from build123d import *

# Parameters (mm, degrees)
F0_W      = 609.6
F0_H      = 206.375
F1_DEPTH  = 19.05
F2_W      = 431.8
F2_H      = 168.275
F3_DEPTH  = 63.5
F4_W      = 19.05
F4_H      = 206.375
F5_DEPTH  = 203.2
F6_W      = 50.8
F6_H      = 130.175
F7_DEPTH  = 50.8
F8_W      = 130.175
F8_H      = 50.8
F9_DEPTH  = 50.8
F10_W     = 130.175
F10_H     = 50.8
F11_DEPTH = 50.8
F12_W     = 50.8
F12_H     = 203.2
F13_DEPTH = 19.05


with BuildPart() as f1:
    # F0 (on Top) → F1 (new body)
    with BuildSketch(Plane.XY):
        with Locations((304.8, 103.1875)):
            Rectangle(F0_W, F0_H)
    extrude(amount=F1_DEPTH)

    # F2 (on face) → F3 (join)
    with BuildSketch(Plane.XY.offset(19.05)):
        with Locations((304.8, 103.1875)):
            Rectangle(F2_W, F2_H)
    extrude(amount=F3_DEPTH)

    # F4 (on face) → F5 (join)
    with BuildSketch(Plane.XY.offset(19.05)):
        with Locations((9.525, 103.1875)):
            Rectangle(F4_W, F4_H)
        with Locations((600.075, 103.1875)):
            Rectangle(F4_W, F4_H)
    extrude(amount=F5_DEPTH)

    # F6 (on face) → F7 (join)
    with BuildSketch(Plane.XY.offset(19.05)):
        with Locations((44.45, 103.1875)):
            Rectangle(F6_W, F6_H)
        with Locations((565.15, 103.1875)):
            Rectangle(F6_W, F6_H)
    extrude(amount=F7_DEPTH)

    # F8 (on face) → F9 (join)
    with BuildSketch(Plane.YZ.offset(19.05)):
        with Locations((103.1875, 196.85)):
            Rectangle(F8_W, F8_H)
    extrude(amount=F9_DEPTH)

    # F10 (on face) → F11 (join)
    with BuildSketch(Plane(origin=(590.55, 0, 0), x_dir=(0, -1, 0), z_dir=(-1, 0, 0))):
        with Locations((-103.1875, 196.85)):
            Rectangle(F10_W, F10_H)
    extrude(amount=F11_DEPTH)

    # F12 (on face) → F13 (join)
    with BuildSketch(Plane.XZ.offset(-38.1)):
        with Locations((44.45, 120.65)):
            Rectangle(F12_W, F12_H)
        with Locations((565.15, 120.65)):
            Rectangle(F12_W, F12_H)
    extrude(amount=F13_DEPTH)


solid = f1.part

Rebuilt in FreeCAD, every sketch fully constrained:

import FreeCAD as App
import Part
import Sketcher

V = App.Vector
Q = App.Units.Quantity

doc = App.newDocument("Part")
body = doc.addObject("PartDesign::Body", "Body")

# Sketch on XY plane
sketch1 = body.newObject("Sketcher::SketchObject", "Sketch")
sketch1.AttachmentSupport = (doc.getObject("XY_Plane"), [""])
sketch1.MapMode = "FlatFace"
sketch1.addGeometry(Part.LineSegment(V(0, 206, 0), V(0, 0, 0)), False)
sketch1.addGeometry(Part.LineSegment(V(0, 0, 0), V(610, 0, 0)), False)
sketch1.addGeometry(Part.LineSegment(V(610, 0, 0), V(610, 206, 0)), False)
sketch1.addGeometry(Part.LineSegment(V(610, 206, 0), V(0, 206, 0)), False)
sketch1.addConstraint(Sketcher.Constraint("Coincident", 0, 2, 1, 1))
sketch1.addConstraint(Sketcher.Constraint("Coincident", 1, 2, 2, 1))
sketch1.addConstraint(Sketcher.Constraint("Coincident", 2, 2, 3, 1))
sketch1.addConstraint(Sketcher.Constraint("Coincident", 3, 2, 0, 1))
sketch1.addConstraint(Sketcher.Constraint("Vertical", 0))
sketch1.addConstraint(Sketcher.Constraint("Horizontal", 1))
sketch1.addConstraint(Sketcher.Constraint("Vertical", 2))
sketch1.addConstraint(Sketcher.Constraint("Horizontal", 3))
sketch1.addConstraint(Sketcher.Constraint("Coincident", 0, 2, -1, 1))
sketch1.addConstraint(Sketcher.Constraint("DistanceX", 1, 1, 1, 2, Q("24 in")))
sketch1.addConstraint(Sketcher.Constraint("DistanceY", 0, 2, 0, 1, Q("8.125 in")))
pad1 = body.newObject("PartDesign::Pad", "Pad")
pad1.Profile = sketch1
pad1.Length = Q("0.75 in")

# Sketch on XY plane
sketch2 = body.newObject("Sketcher::SketchObject", "Sketch001")
sketch2.AttachmentSupport = (doc.getObject("XY_Plane"), [""])
sketch2.MapMode = "FlatFace"
sketch2.AttachmentOffset = App.Placement(V(0, 0, 0.75 * 25.4), App.Rotation())
sketch2.addGeometry(Part.LineSegment(V(89, 187, 0), V(89, 19, 0)), False)
sketch2.addGeometry(Part.LineSegment(V(89, 19, 0), V(521, 19, 0)), False)
sketch2.addGeometry(Part.LineSegment(V(521, 19, 0), V(521, 187, 0)), False)
sketch2.addGeometry(Part.LineSegment(V(521, 187, 0), V(89, 187, 0)), False)
sketch2.addConstraint(Sketcher.Constraint("Coincident", 0, 2, 1, 1))
sketch2.addConstraint(Sketcher.Constraint("Coincident", 1, 2, 2, 1))
sketch2.addConstraint(Sketcher.Constraint("Coincident", 2, 2, 3, 1))
sketch2.addConstraint(Sketcher.Constraint("Coincident", 3, 2, 0, 1))
sketch2.addConstraint(Sketcher.Constraint("Vertical", 0))
sketch2.addConstraint(Sketcher.Constraint("Horizontal", 1))
sketch2.addConstraint(Sketcher.Constraint("Vertical", 2))
sketch2.addConstraint(Sketcher.Constraint("Horizontal", 3))
sketch2.addConstraint(Sketcher.Constraint("DistanceX", 1, 1, 1, 2, Q("17 in")))
sketch2.addConstraint(Sketcher.Constraint("DistanceX", -1, 1, 0, 2, Q("3.5 in")))
sketch2.addConstraint(Sketcher.Constraint("DistanceY", 0, 2, 0, 1, Q("6.625 in")))
sketch2.addConstraint(Sketcher.Constraint("DistanceY", -1, 1, 0, 2, Q("0.75 in")))
pad2 = body.newObject("PartDesign::Pad", "Pad001")
pad2.Profile = sketch2
pad2.Length = Q("2.5 in")

# Sketch on XY plane
sketch3 = body.newObject("Sketcher::SketchObject", "Sketch002")
sketch3.AttachmentSupport = (doc.getObject("XY_Plane"), [""])
sketch3.MapMode = "FlatFace"
sketch3.AttachmentOffset = App.Placement(V(0, 0, 0.75 * 25.4), App.Rotation())
sketch3.addGeometry(Part.LineSegment(V(0, 206, 0), V(0, 0, 0)), False)
sketch3.addGeometry(Part.LineSegment(V(0, 0, 0), V(19, 0, 0)), False)
sketch3.addGeometry(Part.LineSegment(V(19, 0, 0), V(19, 206, 0)), False)
sketch3.addGeometry(Part.LineSegment(V(19, 206, 0), V(0, 206, 0)), False)
sketch3.addGeometry(Part.LineSegment(V(591, 206, 0), V(591, 0, 0)), False)
sketch3.addGeometry(Part.LineSegment(V(591, 0, 0), V(610, 0, 0)), False)
sketch3.addGeometry(Part.LineSegment(V(610, 0, 0), V(610, 206, 0)), False)
sketch3.addGeometry(Part.LineSegment(V(610, 206, 0), V(591, 206, 0)), False)
sketch3.addConstraint(Sketcher.Constraint("Coincident", 0, 2, 1, 1))
sketch3.addConstraint(Sketcher.Constraint("Coincident", 1, 2, 2, 1))
sketch3.addConstraint(Sketcher.Constraint("Coincident", 2, 2, 3, 1))
sketch3.addConstraint(Sketcher.Constraint("Coincident", 3, 2, 0, 1))
sketch3.addConstraint(Sketcher.Constraint("Coincident", 4, 2, 5, 1))
sketch3.addConstraint(Sketcher.Constraint("Coincident", 5, 2, 6, 1))
sketch3.addConstraint(Sketcher.Constraint("Coincident", 6, 2, 7, 1))
sketch3.addConstraint(Sketcher.Constraint("Coincident", 7, 2, 4, 1))
sketch3.addConstraint(Sketcher.Constraint("Vertical", 0))
sketch3.addConstraint(Sketcher.Constraint("Horizontal", 1))
sketch3.addConstraint(Sketcher.Constraint("Vertical", 2))
sketch3.addConstraint(Sketcher.Constraint("Horizontal", 3))
sketch3.addConstraint(Sketcher.Constraint("Vertical", 4))
sketch3.addConstraint(Sketcher.Constraint("Horizontal", 5))
sketch3.addConstraint(Sketcher.Constraint("Vertical", 6))
sketch3.addConstraint(Sketcher.Constraint("Horizontal", 7))
sketch3.addConstraint(Sketcher.Constraint("Coincident", 0, 2, -1, 1))
sketch3.addConstraint(Sketcher.Constraint("PointOnObject", 4, 2, -1))
sketch3.addConstraint(Sketcher.Constraint("Horizontal", 3, 2, 6, 2))
sketch3.addConstraint(Sketcher.Constraint("Equal", 3, 5))
sketch3.addConstraint(Sketcher.Constraint("DistanceX", -1, 1, 5, 2, Q("24 in")))
sketch3.addConstraint(Sketcher.Constraint("DistanceX", 1, 1, 1, 2, Q("0.75 in")))
sketch3.addConstraint(Sketcher.Constraint("DistanceY", 0, 2, 0, 1, Q("8.125 in")))
pad3 = body.newObject("PartDesign::Pad", "Pad002")
pad3.Profile = sketch3
pad3.Length = Q("8 in")

# Sketch on XY plane
sketch4 = body.newObject("Sketcher::SketchObject", "Sketch003")
sketch4.AttachmentSupport = (doc.getObject("XY_Plane"), [""])
sketch4.MapMode = "FlatFace"
sketch4.AttachmentOffset = App.Placement(V(0, 0, 0.75 * 25.4), App.Rotation())
sketch4.addGeometry(Part.LineSegment(V(19, 168, 0), V(19, 38, 0)), False)
sketch4.addGeometry(Part.LineSegment(V(19, 38, 0), V(70, 38, 0)), False)
sketch4.addGeometry(Part.LineSegment(V(70, 38, 0), V(70, 168, 0)), False)
sketch4.addGeometry(Part.LineSegment(V(70, 168, 0), V(19, 168, 0)), False)
sketch4.addGeometry(Part.LineSegment(V(540, 168, 0), V(540, 38, 0)), False)
sketch4.addGeometry(Part.LineSegment(V(540, 38, 0), V(591, 38, 0)), False)
sketch4.addGeometry(Part.LineSegment(V(591, 38, 0), V(591, 168, 0)), False)
sketch4.addGeometry(Part.LineSegment(V(591, 168, 0), V(540, 168, 0)), False)
sketch4.addConstraint(Sketcher.Constraint("Coincident", 0, 2, 1, 1))
sketch4.addConstraint(Sketcher.Constraint("Coincident", 1, 2, 2, 1))
sketch4.addConstraint(Sketcher.Constraint("Coincident", 2, 2, 3, 1))
sketch4.addConstraint(Sketcher.Constraint("Coincident", 3, 2, 0, 1))
sketch4.addConstraint(Sketcher.Constraint("Coincident", 4, 2, 5, 1))
sketch4.addConstraint(Sketcher.Constraint("Coincident", 5, 2, 6, 1))
sketch4.addConstraint(Sketcher.Constraint("Coincident", 6, 2, 7, 1))
sketch4.addConstraint(Sketcher.Constraint("Coincident", 7, 2, 4, 1))
sketch4.addConstraint(Sketcher.Constraint("Vertical", 0))
sketch4.addConstraint(Sketcher.Constraint("Horizontal", 1))
sketch4.addConstraint(Sketcher.Constraint("Vertical", 2))
sketch4.addConstraint(Sketcher.Constraint("Horizontal", 3))
sketch4.addConstraint(Sketcher.Constraint("Vertical", 4))
sketch4.addConstraint(Sketcher.Constraint("Horizontal", 5))
sketch4.addConstraint(Sketcher.Constraint("Vertical", 6))
sketch4.addConstraint(Sketcher.Constraint("Horizontal", 7))
sketch4.addConstraint(Sketcher.Constraint("Horizontal", 1, 2, 4, 2))
sketch4.addConstraint(Sketcher.Constraint("Horizontal", 3, 2, 6, 2))
sketch4.addConstraint(Sketcher.Constraint("Equal", 3, 5))
sketch4.addConstraint(Sketcher.Constraint("DistanceX", 1, 1, 1, 2, Q("2 in")))
sketch4.addConstraint(Sketcher.Constraint("DistanceY", -1, 1, 0, 2, Q("1.5 in")))
sketch4.addConstraint(Sketcher.Constraint("DistanceX", 1, 2, 4, 2, Q("18.5 in")))
sketch4.addConstraint(Sketcher.Constraint("DistanceY", 0, 2, 0, 1, Q("5.125 in")))
sketch4.addConstraint(Sketcher.Constraint("DistanceX", -1, 1, 0, 2, Q("0.75 in")))
pad4 = body.newObject("PartDesign::Pad", "Pad003")
pad4.Profile = sketch4
pad4.Length = Q("2 in")

# Sketch on YZ plane
sketch5 = body.newObject("Sketcher::SketchObject", "Sketch004")
sketch5.AttachmentSupport = (doc.getObject("YZ_Plane"), [""])
sketch5.MapMode = "FlatFace"
sketch5.AttachmentOffset = App.Placement(V(0, 0, 0.75 * 25.4), App.Rotation())
sketch5.addGeometry(Part.LineSegment(V(38, 222, 0), V(38, 171, 0)), False)
sketch5.addGeometry(Part.LineSegment(V(38, 171, 0), V(168, 171, 0)), False)
sketch5.addGeometry(Part.LineSegment(V(168, 171, 0), V(168, 222, 0)), False)
sketch5.addGeometry(Part.LineSegment(V(168, 222, 0), V(38, 222, 0)), False)
sketch5.addConstraint(Sketcher.Constraint("Coincident", 0, 2, 1, 1))
sketch5.addConstraint(Sketcher.Constraint("Coincident", 1, 2, 2, 1))
sketch5.addConstraint(Sketcher.Constraint("Coincident", 2, 2, 3, 1))
sketch5.addConstraint(Sketcher.Constraint("Coincident", 3, 2, 0, 1))
sketch5.addConstraint(Sketcher.Constraint("Vertical", 0))
sketch5.addConstraint(Sketcher.Constraint("Horizontal", 1))
sketch5.addConstraint(Sketcher.Constraint("Vertical", 2))
sketch5.addConstraint(Sketcher.Constraint("Horizontal", 3))
sketch5.addConstraint(Sketcher.Constraint("DistanceY", 0, 2, 0, 1, Q("2 in")))
sketch5.addConstraint(Sketcher.Constraint("DistanceX", -1, 1, 0, 2, Q("1.5 in")))
sketch5.addConstraint(Sketcher.Constraint("DistanceX", 1, 1, 1, 2, Q("5.125 in")))
sketch5.addConstraint(Sketcher.Constraint("DistanceY", -1, 1, 0, 2, Q("6.75 in")))
pad5 = body.newObject("PartDesign::Pad", "Pad004")
pad5.Profile = sketch5
pad5.Length = Q("2 in")

# Sketch on YZ plane
sketch6 = body.newObject("Sketcher::SketchObject", "Sketch005")
sketch6.AttachmentSupport = (doc.getObject("YZ_Plane"), [""])
sketch6.MapMode = "FlatFace"
sketch6.AttachmentOffset = App.Placement(V(0, 0, 23.25 * 25.4), App.Rotation())
sketch6.addGeometry(Part.LineSegment(V(168, 222, 0), V(168, 171, 0)), False)
sketch6.addGeometry(Part.LineSegment(V(168, 171, 0), V(38, 171, 0)), False)
sketch6.addGeometry(Part.LineSegment(V(38, 171, 0), V(38, 222, 0)), False)
sketch6.addGeometry(Part.LineSegment(V(38, 222, 0), V(168, 222, 0)), False)
sketch6.addConstraint(Sketcher.Constraint("Coincident", 0, 2, 1, 1))
sketch6.addConstraint(Sketcher.Constraint("Coincident", 1, 2, 2, 1))
sketch6.addConstraint(Sketcher.Constraint("Coincident", 2, 2, 3, 1))
sketch6.addConstraint(Sketcher.Constraint("Coincident", 3, 2, 0, 1))
sketch6.addConstraint(Sketcher.Constraint("Vertical", 0))
sketch6.addConstraint(Sketcher.Constraint("Horizontal", 1))
sketch6.addConstraint(Sketcher.Constraint("Vertical", 2))
sketch6.addConstraint(Sketcher.Constraint("Horizontal", 3))
sketch6.addConstraint(Sketcher.Constraint("DistanceY", 0, 2, 0, 1, Q("2 in")))
sketch6.addConstraint(Sketcher.Constraint("DistanceX", -1, 1, 1, 2, Q("1.5 in")))
sketch6.addConstraint(Sketcher.Constraint("DistanceX", 1, 2, 1, 1, Q("5.125 in")))
sketch6.addConstraint(Sketcher.Constraint("DistanceY", -1, 1, 0, 2, Q("6.75 in")))
pad6 = body.newObject("PartDesign::Pad", "Pad005")
pad6.Profile = sketch6
pad6.Length = Q("2 in")
pad6.Reversed = True

# Sketch on XZ plane
sketch7 = body.newObject("Sketcher::SketchObject", "Sketch006")
sketch7.AttachmentSupport = (doc.getObject("XZ_Plane"), [""])
sketch7.MapMode = "FlatFace"
sketch7.AttachmentOffset = App.Placement(V(0, 0, -1.5 * 25.4), App.Rotation())
sketch7.addGeometry(Part.LineSegment(V(19, 222, 0), V(19, 19, 0)), False)
sketch7.addGeometry(Part.LineSegment(V(19, 19, 0), V(70, 19, 0)), False)
sketch7.addGeometry(Part.LineSegment(V(70, 19, 0), V(70, 222, 0)), False)
sketch7.addGeometry(Part.LineSegment(V(70, 222, 0), V(19, 222, 0)), False)
sketch7.addGeometry(Part.LineSegment(V(540, 222, 0), V(540, 19, 0)), False)
sketch7.addGeometry(Part.LineSegment(V(540, 19, 0), V(591, 19, 0)), False)
sketch7.addGeometry(Part.LineSegment(V(591, 19, 0), V(591, 222, 0)), False)
sketch7.addGeometry(Part.LineSegment(V(591, 222, 0), V(540, 222, 0)), False)
sketch7.addConstraint(Sketcher.Constraint("Coincident", 0, 2, 1, 1))
sketch7.addConstraint(Sketcher.Constraint("Coincident", 1, 2, 2, 1))
sketch7.addConstraint(Sketcher.Constraint("Coincident", 2, 2, 3, 1))
sketch7.addConstraint(Sketcher.Constraint("Coincident", 3, 2, 0, 1))
sketch7.addConstraint(Sketcher.Constraint("Coincident", 4, 2, 5, 1))
sketch7.addConstraint(Sketcher.Constraint("Coincident", 5, 2, 6, 1))
sketch7.addConstraint(Sketcher.Constraint("Coincident", 6, 2, 7, 1))
sketch7.addConstraint(Sketcher.Constraint("Coincident", 7, 2, 4, 1))
sketch7.addConstraint(Sketcher.Constraint("Vertical", 0))
sketch7.addConstraint(Sketcher.Constraint("Horizontal", 1))
sketch7.addConstraint(Sketcher.Constraint("Vertical", 2))
sketch7.addConstraint(Sketcher.Constraint("Horizontal", 3))
sketch7.addConstraint(Sketcher.Constraint("Vertical", 4))
sketch7.addConstraint(Sketcher.Constraint("Horizontal", 5))
sketch7.addConstraint(Sketcher.Constraint("Vertical", 6))
sketch7.addConstraint(Sketcher.Constraint("Horizontal", 7))
sketch7.addConstraint(Sketcher.Constraint("Horizontal", 1, 2, 4, 2))
sketch7.addConstraint(Sketcher.Constraint("Horizontal", 3, 2, 6, 2))
sketch7.addConstraint(Sketcher.Constraint("Equal", 3, 5))
sketch7.addConstraint(Sketcher.Constraint("DistanceX", 1, 1, 1, 2, Q("2 in")))
sketch7.addConstraint(Sketcher.Constraint("DistanceY", 0, 2, 0, 1, Q("8 in")))
sketch7.addConstraint(Sketcher.Constraint("DistanceX", 1, 2, 4, 2, Q("18.5 in")))
sketch7.addConstraint(Sketcher.Constraint("DistanceX", -1, 1, 0, 2, Q("0.75 in")))
sketch7.addConstraint(Sketcher.Constraint("DistanceY", -1, 1, 0, 2, Q("0.75 in")))
pad7 = body.newObject("PartDesign::Pad", "Pad006")
pad7.Profile = sketch7
pad7.Length = Q("0.75 in")

doc.recompute()
